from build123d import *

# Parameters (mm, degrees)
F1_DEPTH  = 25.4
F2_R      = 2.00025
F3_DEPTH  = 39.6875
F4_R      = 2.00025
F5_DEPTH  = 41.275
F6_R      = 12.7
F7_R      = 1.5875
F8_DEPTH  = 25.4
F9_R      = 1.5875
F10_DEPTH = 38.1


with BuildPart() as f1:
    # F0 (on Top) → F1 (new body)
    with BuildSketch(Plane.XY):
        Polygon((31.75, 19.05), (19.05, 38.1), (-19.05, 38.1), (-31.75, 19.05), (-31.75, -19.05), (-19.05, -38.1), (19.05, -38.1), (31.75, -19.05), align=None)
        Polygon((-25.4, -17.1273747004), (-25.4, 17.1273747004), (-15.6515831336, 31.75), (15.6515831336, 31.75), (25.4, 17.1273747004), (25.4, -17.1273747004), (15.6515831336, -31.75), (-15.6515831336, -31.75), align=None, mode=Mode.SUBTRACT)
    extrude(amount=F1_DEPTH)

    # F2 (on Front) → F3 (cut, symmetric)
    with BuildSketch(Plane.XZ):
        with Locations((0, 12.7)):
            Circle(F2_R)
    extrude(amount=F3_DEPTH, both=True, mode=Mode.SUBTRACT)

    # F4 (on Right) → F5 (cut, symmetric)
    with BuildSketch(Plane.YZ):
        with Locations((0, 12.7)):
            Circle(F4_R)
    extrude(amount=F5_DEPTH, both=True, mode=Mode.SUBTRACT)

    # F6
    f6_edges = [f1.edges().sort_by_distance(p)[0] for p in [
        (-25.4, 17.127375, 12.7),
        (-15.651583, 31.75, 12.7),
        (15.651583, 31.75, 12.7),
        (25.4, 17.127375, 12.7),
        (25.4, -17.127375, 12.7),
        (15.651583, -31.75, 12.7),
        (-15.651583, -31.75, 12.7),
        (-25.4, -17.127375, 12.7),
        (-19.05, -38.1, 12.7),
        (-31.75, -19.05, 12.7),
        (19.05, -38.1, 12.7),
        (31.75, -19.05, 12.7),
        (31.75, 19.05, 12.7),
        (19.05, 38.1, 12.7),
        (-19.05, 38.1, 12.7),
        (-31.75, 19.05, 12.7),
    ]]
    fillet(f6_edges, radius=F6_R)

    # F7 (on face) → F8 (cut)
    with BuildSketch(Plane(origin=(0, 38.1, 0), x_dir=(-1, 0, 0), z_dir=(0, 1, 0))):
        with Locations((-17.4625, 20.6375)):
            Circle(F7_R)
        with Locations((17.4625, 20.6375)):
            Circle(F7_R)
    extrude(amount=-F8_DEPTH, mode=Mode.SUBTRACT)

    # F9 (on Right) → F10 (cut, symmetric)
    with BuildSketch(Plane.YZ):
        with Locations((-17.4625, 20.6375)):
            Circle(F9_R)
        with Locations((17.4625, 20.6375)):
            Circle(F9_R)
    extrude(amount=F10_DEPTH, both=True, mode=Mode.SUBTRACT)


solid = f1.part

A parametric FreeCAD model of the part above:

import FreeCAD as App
import Part
import Sketcher
Q = App.Units.Quantity


def edges_at(feature, points):
    """Names of the edges that pass closest to the given points."""
    edges = feature.Shape.Edges
    near = lambda p: min(range(len(edges)), key=lambda i: edges[i].distToShape(Part.Vertex(*p))[0])
    return sorted({f"Edge{near(p) + 1}" for p in points})

doc = App.newDocument("Part")
body = doc.addObject("PartDesign::Body", "Body")

# Sketch on XY plane
sketch1 = body.newObject("Sketcher::SketchObject", "Sketch")
sketch1.AttachmentSupport = (doc.getObject("XY_Plane"), [""])
sketch1.MapMode = "FlatFace"
sketch1.addGeometry([
    Part.LineSegment(App.Vector(32, 19, 0), App.Vector(19, 38, 0)),  # 0
    Part.LineSegment(App.Vector(19, 38, 0), App.Vector(-19, 38, 0)),  # 1
    Part.LineSegment(App.Vector(-19, 38, 0), App.Vector(-32, 19, 0)),  # 2
    Part.LineSegment(App.Vector(-32, 19, 0), App.Vector(-32, -19, 0)),  # 3
    Part.LineSegment(App.Vector(-32, -19, 0), App.Vector(-19, -38, 0)),  # 4
    Part.LineSegment(App.Vector(-19, -38, 0), App.Vector(19, -38, 0)),  # 5
    Part.LineSegment(App.Vector(19, -38, 0), App.Vector(32, -19, 0)),  # 6
    Part.LineSegment(App.Vector(32, -19, 0), App.Vector(32, 19, 0)),  # 7
    Part.LineSegment(App.Vector(-16, -32, 0), App.Vector(-25, -17, 0)),  # 8
    Part.LineSegment(App.Vector(-25, -17, 0), App.Vector(-25, 17, 0)),  # 9
    Part.LineSegment(App.Vector(-25, 17, 0), App.Vector(-16, 32, 0)),  # 10
    Part.LineSegment(App.Vector(-16, 32, 0), App.Vector(16, 32, 0)),  # 11
    Part.LineSegment(App.Vector(16, 32, 0), App.Vector(25, 17, 0)),  # 12
    Part.LineSegment(App.Vector(25, 17, 0), App.Vector(25, -17, 0)),  # 13
    Part.LineSegment(App.Vector(25, -17, 0), App.Vector(16, -32, 0)),  # 14
    Part.LineSegment(App.Vector(16, -32, 0), App.Vector(-16, -32, 0)),  # 15
], False)
sketch1.addConstraint([
    Sketcher.Constraint("Coincident", 0, 2, 1, 1),
    Sketcher.Constraint("Coincident", 1, 2, 2, 1),
    Sketcher.Constraint("Coincident", 2, 2, 3, 1),
    Sketcher.Constraint("Coincident", 3, 2, 4, 1),
    Sketcher.Constraint("Coincident", 4, 2, 5, 1),
    Sketcher.Constraint("Coincident", 5, 2, 6, 1),
    Sketcher.Constraint("Coincident", 6, 2, 7, 1),
    Sketcher.Constraint("Coincident", 7, 2, 0, 1),
    Sketcher.Constraint("Coincident", 8, 2, 9, 1),
    Sketcher.Constraint("Coincident", 9, 2, 10, 1),
    Sketcher.Constraint("Coincident", 10, 2, 11, 1),
    Sketcher.Constraint("Coincident", 11, 2, 12, 1),
    Sketcher.Constraint("Coincident", 12, 2, 13, 1),
    Sketcher.Constraint("Coincident", 13, 2, 14, 1),
    Sketcher.Constraint("Coincident", 14, 2, 15, 1),
    Sketcher.Constraint("Coincident", 15, 2, 8, 1),
    Sketcher.Constraint("Horizontal", 1),
    Sketcher.Constraint("Vertical", 3),
    Sketcher.Constraint("Horizontal", 5),
    Sketcher.Constraint("Vertical", 7),
    Sketcher.Constraint("Vertical", 9),
    Sketcher.Constraint("Horizontal", 11),
    Sketcher.Constraint("Vertical", 13),
    Sketcher.Constraint("Horizontal", 15),
    Sketcher.Constraint("Symmetric", 0, 2, 4, 2, -1, 1),
    Sketcher.Constraint("Symmetric", 2, 2, 6, 2, -1, 1),
    Sketcher.Constraint("Symmetric", 8, 2, 12, 2, -1, 1),
    Sketcher.Constraint("Symmetric", 10, 2, 14, 2, -1, 1),
    Sketcher.Constraint("Parallel", 0, 4),
    Sketcher.Constraint("Parallel", 2, 6),
    Sketcher.Constraint("Parallel", 4, 8),
    Sketcher.Constraint("Parallel", 6, 10),
    Sketcher.Constraint("Parallel", 8, 12),
    Sketcher.Constraint("Parallel", 10, 14),
    Sketcher.Constraint("Horizontal", 3, 2, 6, 2),
    Sketcher.Constraint("Horizontal", 9, 2, 12, 2),
    Sketcher.Constraint("Vertical", 1, 2, 4, 2),
    Sketcher.Constraint("Equal", 5, 3),
    Sketcher.Constraint("DistanceX", 1, 2, 1, 1, Q("1.5 in")),
    Sketcher.Constraint("DistanceX", 8, 2, -1, 1, Q("1 in")),
    Sketcher.Constraint("DistanceX", 2, 2, 0, 2, Q("2 in")),
    Sketcher.Constraint("DistanceY", 4, 2, 1, 2, Q("3 in")),
    Sketcher.Constraint("DistanceY", 2, 2, 10, 2, Q("0.5 in")),
    Sketcher.Constraint("DistanceY", 9, 1, 9, 2, 34.254749),
])
pad1 = body.newObject("PartDesign::Pad", "Pad")
pad1.Profile = sketch1
pad1.Length = Q("1 in")

# Sketch on XZ plane
sketch2 = body.newObject("Sketcher::SketchObject", "Sketch001")
sketch2.AttachmentSupport = (doc.getObject("XZ_Plane"), [""])
sketch2.MapMode = "FlatFace"
sketch2.addGeometry(Part.Circle(App.Vector(0, 12.7, 0), App.Vector(0, 0, 1), 2), False)
sketch2.addConstraint([
    Sketcher.Constraint("PointOnObject", 0, 3, -2),
    Sketcher.Constraint("Diameter", 0, Q("0.1575 in")),
    Sketcher.Constraint("DistanceY", -1, 1, 0, 3, Q("0.5 in")),
])
pocket1 = body.newObject("PartDesign::Pocket", "Pocket")
pocket1.Profile = sketch2
pocket1.Length = Q("3.125 in")
pocket1.Midplane = True

# Sketch on YZ plane
sketch3 = body.newObject("Sketcher::SketchObject", "Sketch002")
sketch3.AttachmentSupport = (doc.getObject("YZ_Plane"), [""])
sketch3.MapMode = "FlatFace"
sketch3.addGeometry(Part.Circle(App.Vector(0, 12.7, 0), App.Vector(0, 0, 1), 2), False)
sketch3.addConstraint([
    Sketcher.Constraint("PointOnObject", 0, 3, -2),
    Sketcher.Constraint("Diameter", 0, Q("0.1575 in")),
    Sketcher.Constraint("DistanceY", -1, 1, 0, 3, Q("0.5 in")),
])
pocket2 = body.newObject("PartDesign::Pocket", "Pocket001")
pocket2.Profile = sketch3
pocket2.Length = Q("3.25 in")
pocket2.Midplane = True
doc.recompute()

fillet = body.newObject("PartDesign::Fillet", "Fillet")
fillet.Base = (pocket2, edges_at(pocket2, [
    (-25.4, 17.127, 12.7),
    (-15.652, 31.75, 12.7),
    (15.652, 31.75, 12.7),
    (25.4, 17.127, 12.7),
    (25.4, -17.127, 12.7),
    (15.652, -31.75, 12.7),
    (-15.652, -31.75, 12.7),
    (-25.4, -17.127, 12.7),
    (-19.05, -38.1, 12.7),
    (-31.75, -19.05, 12.7),
    (19.05, -38.1, 12.7),
    (31.75, -19.05, 12.7),
    (31.75, 19.05, 12.7),
    (19.05, 38.1, 12.7),
    (-19.05, 38.1, 12.7),
    (-31.75, 19.05, 12.7),
]))
fillet.Radius = Q("0.5 in")

# Sketch on XZ plane
sketch4 = body.newObject("Sketcher::SketchObject", "Sketch003")
sketch4.AttachmentSupport = (doc.getObject("XZ_Plane"), [""])
sketch4.MapMode = "FlatFace"
sketch4.AttachmentOffset = App.Placement(App.Vector(0, 0, -1.5 * 25.4), App.Rotation())
sketch4.addGeometry([
    Part.Circle(App.Vector(17.5, 20.6, 0), App.Vector(0, 0, 1), 1.6),
    Part.Circle(App.Vector(-17.5, 20.6, 0), App.Vector(0, 0, 1), 1.6),
], False)
sketch4.addConstraint([
    Sketcher.Constraint("Equal", 0, 1),
    Sketcher.Constraint("Symmetric", 0, 3, 1, 3, -2),
    Sketcher.Constraint("Diameter", 0, Q("0.125 in")),
    Sketcher.Constraint("DistanceX", -1, 1, 0, 3, Q("0.6875 in")),
    Sketcher.Constraint("DistanceY", -1, 1, 0, 3, Q("0.8125 in")),
])
pocket3 = body.newObject("PartDesign::Pocket", "Pocket002")
pocket3.Profile = sketch4
pocket3.Length = Q("1 in")
pocket3.Reversed = True

# Sketch on YZ plane
sketch5 = body.newObject("Sketcher::SketchObject", "Sketch004")
sketch5.AttachmentSupport = (doc.getObject("YZ_Plane"), [""])
sketch5.MapMode = "FlatFace"
sketch5.addGeometry([
    Part.Circle(App.Vector(-17.5, 20.6, 0), App.Vector(0, 0, 1), 1.6),
    Part.Circle(App.Vector(17.5, 20.6, 0), App.Vector(0, 0, 1), 1.6),
], False)
sketch5.addConstraint([
    Sketcher.Constraint("Equal", 0, 1),
    Sketcher.Constraint("Symmetric", 0, 3, 1, 3, -2),
    Sketcher.Constraint("Diameter", 0, Q("0.125 in")),
    Sketcher.Constraint("DistanceX", 0, 3, -1, 1, Q("0.6875 in")),
    Sketcher.Constraint("DistanceY", -1, 1, 0, 3, Q("0.8125 in")),
])
pocket4 = body.newObject("PartDesign::Pocket", "Pocket003")
pocket4.Profile = sketch5
pocket4.Length = Q("3 in")
pocket4.Midplane = True

doc.recompute()
